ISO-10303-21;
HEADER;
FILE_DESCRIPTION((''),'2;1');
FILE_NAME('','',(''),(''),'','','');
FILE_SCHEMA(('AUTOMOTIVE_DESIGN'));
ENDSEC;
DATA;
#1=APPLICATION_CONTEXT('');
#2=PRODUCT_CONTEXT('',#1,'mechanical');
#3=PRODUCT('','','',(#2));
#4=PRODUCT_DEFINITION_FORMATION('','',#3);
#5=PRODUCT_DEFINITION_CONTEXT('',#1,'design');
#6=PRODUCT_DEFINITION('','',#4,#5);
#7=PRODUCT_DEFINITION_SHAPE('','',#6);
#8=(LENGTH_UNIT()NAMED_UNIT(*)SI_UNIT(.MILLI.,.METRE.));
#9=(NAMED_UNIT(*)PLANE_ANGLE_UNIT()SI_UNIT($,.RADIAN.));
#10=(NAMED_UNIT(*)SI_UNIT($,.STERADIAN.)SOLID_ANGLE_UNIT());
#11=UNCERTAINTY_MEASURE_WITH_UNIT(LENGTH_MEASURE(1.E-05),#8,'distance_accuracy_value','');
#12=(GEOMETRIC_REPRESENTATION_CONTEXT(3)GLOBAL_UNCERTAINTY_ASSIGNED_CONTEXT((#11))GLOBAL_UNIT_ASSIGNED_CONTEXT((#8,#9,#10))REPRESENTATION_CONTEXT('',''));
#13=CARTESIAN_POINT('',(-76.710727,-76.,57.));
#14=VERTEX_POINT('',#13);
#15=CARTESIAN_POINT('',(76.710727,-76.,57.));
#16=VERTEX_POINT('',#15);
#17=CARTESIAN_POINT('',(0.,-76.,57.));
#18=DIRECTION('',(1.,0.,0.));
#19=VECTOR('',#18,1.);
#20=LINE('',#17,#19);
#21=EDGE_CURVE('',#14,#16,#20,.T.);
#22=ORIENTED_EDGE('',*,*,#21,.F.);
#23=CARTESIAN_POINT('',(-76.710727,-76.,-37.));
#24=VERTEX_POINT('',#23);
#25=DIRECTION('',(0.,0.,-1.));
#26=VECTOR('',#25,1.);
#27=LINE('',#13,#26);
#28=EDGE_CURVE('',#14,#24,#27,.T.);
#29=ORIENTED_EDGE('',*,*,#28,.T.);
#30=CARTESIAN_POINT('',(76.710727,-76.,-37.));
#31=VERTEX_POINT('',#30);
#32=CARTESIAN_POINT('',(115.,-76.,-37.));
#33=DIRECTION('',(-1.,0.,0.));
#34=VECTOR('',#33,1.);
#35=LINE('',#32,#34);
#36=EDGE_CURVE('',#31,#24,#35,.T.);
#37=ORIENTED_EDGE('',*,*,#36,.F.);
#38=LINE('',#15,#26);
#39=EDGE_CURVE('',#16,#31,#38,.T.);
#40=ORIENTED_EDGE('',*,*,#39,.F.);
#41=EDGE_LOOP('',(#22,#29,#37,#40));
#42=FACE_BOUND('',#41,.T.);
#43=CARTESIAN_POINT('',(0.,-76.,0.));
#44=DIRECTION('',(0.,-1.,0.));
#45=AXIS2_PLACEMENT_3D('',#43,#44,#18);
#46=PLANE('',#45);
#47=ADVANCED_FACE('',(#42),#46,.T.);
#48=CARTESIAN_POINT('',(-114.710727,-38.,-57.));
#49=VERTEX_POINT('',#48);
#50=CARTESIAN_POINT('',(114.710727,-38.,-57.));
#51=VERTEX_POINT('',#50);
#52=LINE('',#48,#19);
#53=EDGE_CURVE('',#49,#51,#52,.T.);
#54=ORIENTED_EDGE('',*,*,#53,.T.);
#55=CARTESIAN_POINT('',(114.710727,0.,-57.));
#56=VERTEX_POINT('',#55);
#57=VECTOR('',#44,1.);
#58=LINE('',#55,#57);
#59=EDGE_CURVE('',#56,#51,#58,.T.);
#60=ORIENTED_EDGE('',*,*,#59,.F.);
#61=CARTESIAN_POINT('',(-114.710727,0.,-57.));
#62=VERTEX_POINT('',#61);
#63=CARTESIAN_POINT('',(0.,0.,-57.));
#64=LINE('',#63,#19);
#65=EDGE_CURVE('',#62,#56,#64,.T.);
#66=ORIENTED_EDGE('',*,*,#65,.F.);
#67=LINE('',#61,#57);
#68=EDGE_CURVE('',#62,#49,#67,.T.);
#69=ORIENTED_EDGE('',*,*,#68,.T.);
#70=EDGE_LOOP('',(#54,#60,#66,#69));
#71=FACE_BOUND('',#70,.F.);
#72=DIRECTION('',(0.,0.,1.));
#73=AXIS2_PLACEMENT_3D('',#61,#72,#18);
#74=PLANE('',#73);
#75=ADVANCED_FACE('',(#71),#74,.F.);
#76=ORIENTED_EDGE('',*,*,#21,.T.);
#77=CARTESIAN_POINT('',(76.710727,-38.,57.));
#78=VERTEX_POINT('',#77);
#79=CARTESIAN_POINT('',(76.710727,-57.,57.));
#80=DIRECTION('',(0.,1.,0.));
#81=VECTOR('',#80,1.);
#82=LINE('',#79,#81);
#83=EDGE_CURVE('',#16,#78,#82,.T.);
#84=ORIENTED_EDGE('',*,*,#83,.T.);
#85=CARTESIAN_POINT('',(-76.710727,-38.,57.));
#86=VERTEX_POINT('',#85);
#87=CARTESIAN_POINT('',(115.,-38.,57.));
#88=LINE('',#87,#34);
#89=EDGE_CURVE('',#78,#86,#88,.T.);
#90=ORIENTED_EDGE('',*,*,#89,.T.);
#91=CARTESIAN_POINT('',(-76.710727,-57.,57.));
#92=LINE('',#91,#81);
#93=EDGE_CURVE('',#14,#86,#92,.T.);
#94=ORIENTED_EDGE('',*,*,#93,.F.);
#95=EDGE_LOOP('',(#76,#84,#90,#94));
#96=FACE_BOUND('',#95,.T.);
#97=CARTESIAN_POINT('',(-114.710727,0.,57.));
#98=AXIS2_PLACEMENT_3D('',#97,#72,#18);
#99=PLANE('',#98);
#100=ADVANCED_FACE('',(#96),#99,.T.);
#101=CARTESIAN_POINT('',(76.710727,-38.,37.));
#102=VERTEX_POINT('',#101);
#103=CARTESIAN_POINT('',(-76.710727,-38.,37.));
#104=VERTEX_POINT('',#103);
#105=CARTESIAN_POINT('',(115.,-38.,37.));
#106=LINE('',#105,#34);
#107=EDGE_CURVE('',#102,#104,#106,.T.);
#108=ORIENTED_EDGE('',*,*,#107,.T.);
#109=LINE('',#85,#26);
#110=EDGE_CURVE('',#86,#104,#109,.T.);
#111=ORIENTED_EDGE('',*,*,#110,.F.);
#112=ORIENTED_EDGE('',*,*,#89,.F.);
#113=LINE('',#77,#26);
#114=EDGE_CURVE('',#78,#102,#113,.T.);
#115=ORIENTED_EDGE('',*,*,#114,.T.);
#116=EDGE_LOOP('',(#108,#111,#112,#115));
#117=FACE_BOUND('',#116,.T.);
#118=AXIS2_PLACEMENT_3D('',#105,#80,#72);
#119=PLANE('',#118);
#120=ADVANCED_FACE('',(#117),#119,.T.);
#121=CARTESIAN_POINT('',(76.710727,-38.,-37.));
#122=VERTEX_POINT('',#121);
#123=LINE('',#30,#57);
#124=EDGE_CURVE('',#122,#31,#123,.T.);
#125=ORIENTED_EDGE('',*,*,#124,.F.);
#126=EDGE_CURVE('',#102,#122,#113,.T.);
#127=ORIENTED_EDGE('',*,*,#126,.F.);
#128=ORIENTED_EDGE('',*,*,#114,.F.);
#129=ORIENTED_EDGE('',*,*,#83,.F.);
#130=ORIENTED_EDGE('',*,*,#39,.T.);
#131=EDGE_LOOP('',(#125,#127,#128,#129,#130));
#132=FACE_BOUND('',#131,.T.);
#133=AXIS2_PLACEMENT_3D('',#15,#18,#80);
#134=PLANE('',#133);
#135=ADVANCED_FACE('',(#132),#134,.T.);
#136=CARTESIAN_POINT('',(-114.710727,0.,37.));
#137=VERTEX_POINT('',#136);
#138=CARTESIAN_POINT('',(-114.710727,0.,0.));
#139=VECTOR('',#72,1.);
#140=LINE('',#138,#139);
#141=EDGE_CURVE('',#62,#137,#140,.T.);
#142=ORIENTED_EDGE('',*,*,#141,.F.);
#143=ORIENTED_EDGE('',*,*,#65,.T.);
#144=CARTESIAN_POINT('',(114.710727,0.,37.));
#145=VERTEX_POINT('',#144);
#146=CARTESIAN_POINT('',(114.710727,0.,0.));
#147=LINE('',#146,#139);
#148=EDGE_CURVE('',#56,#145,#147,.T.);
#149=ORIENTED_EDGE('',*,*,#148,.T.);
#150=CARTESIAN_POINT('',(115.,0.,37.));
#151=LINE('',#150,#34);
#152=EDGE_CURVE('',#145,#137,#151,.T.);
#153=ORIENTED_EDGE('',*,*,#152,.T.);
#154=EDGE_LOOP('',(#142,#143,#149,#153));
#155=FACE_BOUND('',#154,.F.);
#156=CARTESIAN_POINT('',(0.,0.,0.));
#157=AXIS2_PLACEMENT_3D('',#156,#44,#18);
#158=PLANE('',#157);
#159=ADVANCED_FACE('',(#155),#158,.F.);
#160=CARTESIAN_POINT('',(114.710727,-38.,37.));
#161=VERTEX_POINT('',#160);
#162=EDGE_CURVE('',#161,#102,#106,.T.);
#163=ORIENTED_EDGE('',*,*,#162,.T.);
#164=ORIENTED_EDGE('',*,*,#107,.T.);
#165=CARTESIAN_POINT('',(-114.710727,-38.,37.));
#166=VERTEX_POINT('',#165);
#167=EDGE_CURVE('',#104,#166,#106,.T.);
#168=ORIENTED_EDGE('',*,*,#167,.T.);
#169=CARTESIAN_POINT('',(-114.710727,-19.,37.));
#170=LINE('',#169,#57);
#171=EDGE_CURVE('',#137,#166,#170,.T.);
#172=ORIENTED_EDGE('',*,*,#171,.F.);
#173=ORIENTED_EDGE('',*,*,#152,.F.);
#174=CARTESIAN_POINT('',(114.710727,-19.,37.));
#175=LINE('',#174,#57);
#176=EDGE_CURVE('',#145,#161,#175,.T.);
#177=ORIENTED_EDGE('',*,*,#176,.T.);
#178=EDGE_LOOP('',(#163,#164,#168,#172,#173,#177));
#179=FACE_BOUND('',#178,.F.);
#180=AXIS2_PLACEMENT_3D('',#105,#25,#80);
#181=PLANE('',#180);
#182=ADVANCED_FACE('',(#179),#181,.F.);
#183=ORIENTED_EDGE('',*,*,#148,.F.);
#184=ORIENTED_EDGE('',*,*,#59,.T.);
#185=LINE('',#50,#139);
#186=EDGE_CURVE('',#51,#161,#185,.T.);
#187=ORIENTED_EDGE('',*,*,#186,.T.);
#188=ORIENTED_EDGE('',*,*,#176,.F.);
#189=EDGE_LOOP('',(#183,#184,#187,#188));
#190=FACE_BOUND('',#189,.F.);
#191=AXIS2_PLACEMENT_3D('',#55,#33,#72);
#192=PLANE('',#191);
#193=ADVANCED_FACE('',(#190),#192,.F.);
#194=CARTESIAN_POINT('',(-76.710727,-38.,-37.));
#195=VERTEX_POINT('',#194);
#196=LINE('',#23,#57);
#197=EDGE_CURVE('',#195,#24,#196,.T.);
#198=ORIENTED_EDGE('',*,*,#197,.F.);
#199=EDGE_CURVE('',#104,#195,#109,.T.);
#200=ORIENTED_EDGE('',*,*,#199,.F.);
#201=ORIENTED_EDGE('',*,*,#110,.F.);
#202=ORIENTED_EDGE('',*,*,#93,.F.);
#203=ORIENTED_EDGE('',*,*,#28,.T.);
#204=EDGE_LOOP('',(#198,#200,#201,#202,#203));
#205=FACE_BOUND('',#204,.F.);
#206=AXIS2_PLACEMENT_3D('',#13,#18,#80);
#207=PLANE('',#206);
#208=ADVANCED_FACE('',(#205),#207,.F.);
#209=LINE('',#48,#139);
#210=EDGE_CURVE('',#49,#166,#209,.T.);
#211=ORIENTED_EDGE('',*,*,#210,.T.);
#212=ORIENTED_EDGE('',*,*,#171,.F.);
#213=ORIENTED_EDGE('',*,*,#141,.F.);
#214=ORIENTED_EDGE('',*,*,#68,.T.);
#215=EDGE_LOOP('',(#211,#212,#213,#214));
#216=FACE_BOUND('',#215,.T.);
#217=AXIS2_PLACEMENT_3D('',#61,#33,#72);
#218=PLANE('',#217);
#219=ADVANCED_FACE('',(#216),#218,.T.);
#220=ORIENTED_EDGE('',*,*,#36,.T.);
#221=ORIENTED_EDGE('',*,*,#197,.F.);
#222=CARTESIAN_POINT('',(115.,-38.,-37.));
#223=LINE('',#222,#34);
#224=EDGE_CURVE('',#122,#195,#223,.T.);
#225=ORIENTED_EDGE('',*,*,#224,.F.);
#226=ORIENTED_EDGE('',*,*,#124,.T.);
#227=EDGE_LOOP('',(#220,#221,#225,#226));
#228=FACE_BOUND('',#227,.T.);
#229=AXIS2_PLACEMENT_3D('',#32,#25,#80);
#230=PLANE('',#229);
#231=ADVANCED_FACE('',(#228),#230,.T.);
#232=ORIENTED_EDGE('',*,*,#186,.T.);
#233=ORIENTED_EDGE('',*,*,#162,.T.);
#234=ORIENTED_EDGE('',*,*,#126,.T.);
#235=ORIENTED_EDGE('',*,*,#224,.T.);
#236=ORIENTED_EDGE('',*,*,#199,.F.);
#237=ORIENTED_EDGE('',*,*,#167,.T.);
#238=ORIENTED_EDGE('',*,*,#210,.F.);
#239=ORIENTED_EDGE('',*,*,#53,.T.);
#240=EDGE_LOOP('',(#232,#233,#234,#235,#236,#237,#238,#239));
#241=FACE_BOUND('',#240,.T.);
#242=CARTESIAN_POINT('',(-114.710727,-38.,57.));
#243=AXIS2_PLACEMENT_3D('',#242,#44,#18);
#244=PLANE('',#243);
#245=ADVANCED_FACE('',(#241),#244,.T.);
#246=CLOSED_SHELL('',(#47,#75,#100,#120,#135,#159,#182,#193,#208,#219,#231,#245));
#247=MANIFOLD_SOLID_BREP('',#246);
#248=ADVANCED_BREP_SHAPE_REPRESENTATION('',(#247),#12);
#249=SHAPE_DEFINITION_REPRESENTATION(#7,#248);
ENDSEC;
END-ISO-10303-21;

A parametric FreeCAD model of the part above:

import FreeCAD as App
import Part
import Sketcher


def add_polygon(sketch, points):
    """Adds a closed chain of lines whose ends are joined by coincident constraints."""
    first, n = sketch.GeometryCount, len(points)
    for a, b in zip(points, points[1:] + points[:1]):
        sketch.addGeometry(Part.LineSegment(App.Vector(*a, 0), App.Vector(*b, 0)), False)
    for i in range(n):
        sketch.addConstraint(Sketcher.Constraint("Coincident", first + i, 2, first + (i + 1) % n, 1))

doc = App.newDocument("Part")
body = doc.addObject("PartDesign::Body", "Body")

# Sketch on XZ plane
sketch1 = body.newObject("Sketcher::SketchObject", "Sketch")
sketch1.AttachmentSupport = (doc.getObject("XZ_Plane"), [""])
sketch1.MapMode = "FlatFace"
add_polygon(sketch1, [(-115, 57), (-115, -57), (115, -57), (115, 57)])  # lines 0-3
sketch1.addConstraint([
    Sketcher.Constraint("Vertical", 0),
    Sketcher.Constraint("Horizontal", 1),
    Sketcher.Constraint("Vertical", 2),
    Sketcher.Constraint("Horizontal", 3),
    Sketcher.Constraint("Symmetric", 0, 2, 2, 2, -1, 1),
    Sketcher.Constraint("DistanceY", 0, 2, 0, 1, 114.0),
    Sketcher.Constraint("DistanceX", 1, 1, 1, 2, 229.421454),
])
pad1 = body.newObject("PartDesign::Pad", "Pad")
pad1.Profile = sketch1
pad1.Length = 76

# Sketch on YZ plane
sketch2 = body.newObject("Sketcher::SketchObject", "Sketch001")
sketch2.AttachmentSupport = (doc.getObject("YZ_Plane"), [""])
sketch2.MapMode = "FlatFace"
sketch2.AttachmentOffset = App.Placement(App.Vector(0, 0, 115), App.Rotation())
add_polygon(sketch2, [(-38, 57), (-38, 37), (0, 37), (0, 57)])  # lines 0-3
add_polygon(sketch2, [(-76, -37), (-76, -57), (-38, -57), (-38, -37)])  # lines 4-7
sketch2.addConstraint([
    Sketcher.Constraint("Vertical", 0),
    Sketcher.Constraint("Horizontal", 1),
    Sketcher.Constraint("Vertical", 2),
    Sketcher.Constraint("Horizontal", 3),
    Sketcher.Constraint("Vertical", 4),
    Sketcher.Constraint("Horizontal", 5),
    Sketcher.Constraint("Vertical", 6),
    Sketcher.Constraint("Horizontal", 7),
    Sketcher.Constraint("Symmetric", 3, 2, 5, 2, -1),
    Sketcher.Constraint("PointOnObject", 1, 2, -2),
    Sketcher.Constraint("Equal", 3, 5),
    Sketcher.Constraint("Equal", 2, 4),
    Sketcher.Constraint("DistanceX", 1, 1, 1, 2, 38.0),
    Sketcher.Constraint("DistanceY", 0, 2, 0, 1, 20.0),
    Sketcher.Constraint("DistanceY", -1, 1, 0, 2, 37.0),
])
pocket1 = body.newObject("PartDesign::Pocket", "Pocket")
pocket1.Profile = sketch2
pocket1.Type = "ThroughAll"

# Sketch on XY plane
sketch3 = body.newObject("Sketcher::SketchObject", "Sketch002")
sketch3.AttachmentSupport = (doc.getObject("XY_Plane"), [""])
sketch3.MapMode = "FlatFace"
sketch3.AttachmentOffset = App.Placement(App.Vector(0, 0, 57), App.Rotation())
add_polygon(sketch3, [(-115, -38), (-115, -76), (-77, -76), (-77, -38)])  # lines 0-3
add_polygon(sketch3, [(77, -38), (77, -76), (115, -76), (115, -38)])  # lines 4-7
sketch3.addConstraint([
    Sketcher.Constraint("Vertical", 0),
    Sketcher.Constraint("Horizontal", 1),
    Sketcher.Constraint("Vertical", 2),
    Sketcher.Constraint("Horizontal", 3),
    Sketcher.Constraint("Vertical", 4),
    Sketcher.Constraint("Horizontal", 5),
    Sketcher.Constraint("Vertical", 6),
    Sketcher.Constraint("Horizontal", 7),
    Sketcher.Constraint("Symmetric", 1, 2, 4, 2, -2),
    Sketcher.Constraint("Symmetric", 3, 2, 6, 2, -2),
    Sketcher.Constraint("Equal", 7, 0),
    Sketcher.Constraint("DistanceX", 1, 1, 1, 2, 38.0),
    Sketcher.Constraint("DistanceY", 0, 2, -1, 1, 76.0),
    Sketcher.Constraint("DistanceX", 0, 2, -1, 1, 114.710727),
])
pocket2 = body.newObject("PartDesign::Pocket", "Pocket001")
pocket2.Profile = sketch3
pocket2.Type = "ThroughAll"

doc.recompute()
